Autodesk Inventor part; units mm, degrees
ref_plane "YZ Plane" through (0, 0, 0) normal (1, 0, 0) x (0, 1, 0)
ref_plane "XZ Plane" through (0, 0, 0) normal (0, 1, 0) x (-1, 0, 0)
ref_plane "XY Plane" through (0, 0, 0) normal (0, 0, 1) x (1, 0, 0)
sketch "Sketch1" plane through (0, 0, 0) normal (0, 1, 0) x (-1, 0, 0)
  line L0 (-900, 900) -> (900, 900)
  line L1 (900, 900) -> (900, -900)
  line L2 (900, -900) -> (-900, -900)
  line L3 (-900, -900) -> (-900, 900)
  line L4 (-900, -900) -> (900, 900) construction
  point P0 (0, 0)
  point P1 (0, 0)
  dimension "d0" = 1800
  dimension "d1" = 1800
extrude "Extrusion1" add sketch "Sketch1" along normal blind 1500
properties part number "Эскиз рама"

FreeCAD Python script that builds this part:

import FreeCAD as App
import Part
import Sketcher
Q = App.Units.Quantity


def add_polygon(sketch, points):
    """Adds a closed chain of lines whose ends are joined by coincident constraints."""
    first, n = sketch.GeometryCount, len(points)
    for a, b in zip(points, points[1:] + points[:1]):
        sketch.addGeometry(Part.LineSegment(App.Vector(*a, 0), App.Vector(*b, 0)), False)
    for i in range(n):
        sketch.addConstraint(Sketcher.Constraint("Coincident", first + i, 2, first + (i + 1) % n, 1))

doc = App.newDocument("Part")
params = doc.addObject("Spreadsheet::Sheet", "Params")
for row, (alias, value) in enumerate([
    ("sketch1_width", "1800 mm"),
    ("pad1_length", "1500 mm"),
], start=1):
    params.set(f"A{row}", alias)
    params.set(f"B{row}", "=" + value)
    params.setAlias(f"B{row}", alias)

body = doc.addObject("PartDesign::Body", "Body")

# Sketch on XZ plane
sketch1 = body.newObject("Sketcher::SketchObject", "Sketch")
sketch1.AttachmentSupport = (doc.getObject("XZ_Plane"), [""])
sketch1.MapMode = "FlatFace"
add_polygon(sketch1, [(-900, 900), (900, 900), (900, -900), (-900, -900)])  # lines 0-3
sketch1.addConstraint([
    Sketcher.Constraint("Horizontal", 0),
    Sketcher.Constraint("Vertical", 1),
    Sketcher.Constraint("Horizontal", 2),
    Sketcher.Constraint("Vertical", 3),
    Sketcher.Constraint("Symmetric", 0, 2, 2, 2, -1, 1),
    Sketcher.Constraint("Equal", 2, 1),
    Sketcher.Constraint("DistanceX", 0, 1, 0, 2, Q("1800 mm")),
])
sketch1.setExpression("Constraints[10]", "Params.sketch1_width")
pad1 = body.newObject("PartDesign::Pad", "Pad")
pad1.Profile = sketch1
pad1.setExpression("Length", "Params.pad1_length")
pad1.Reversed = True

doc.recompute()
